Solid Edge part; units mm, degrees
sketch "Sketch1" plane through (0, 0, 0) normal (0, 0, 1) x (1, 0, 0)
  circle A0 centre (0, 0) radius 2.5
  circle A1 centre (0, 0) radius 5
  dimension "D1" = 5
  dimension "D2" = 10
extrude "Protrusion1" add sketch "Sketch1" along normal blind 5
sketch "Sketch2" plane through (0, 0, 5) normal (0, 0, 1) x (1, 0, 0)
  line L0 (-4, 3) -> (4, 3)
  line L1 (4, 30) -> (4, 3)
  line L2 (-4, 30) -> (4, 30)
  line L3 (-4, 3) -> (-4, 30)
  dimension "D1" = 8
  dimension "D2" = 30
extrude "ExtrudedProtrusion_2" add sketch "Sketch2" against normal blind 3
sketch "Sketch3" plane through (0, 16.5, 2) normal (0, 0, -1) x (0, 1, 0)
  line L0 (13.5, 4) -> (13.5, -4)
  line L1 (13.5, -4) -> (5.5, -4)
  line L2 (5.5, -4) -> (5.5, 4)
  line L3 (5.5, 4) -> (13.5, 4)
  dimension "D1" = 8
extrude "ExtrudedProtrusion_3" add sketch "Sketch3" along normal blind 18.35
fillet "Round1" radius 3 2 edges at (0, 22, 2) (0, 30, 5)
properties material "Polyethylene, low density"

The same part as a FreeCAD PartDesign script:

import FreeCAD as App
import Part
import Sketcher

V = App.Vector


def edges_at(feature, points):
    """Names of the edges that pass closest to the given points."""
    edges = feature.Shape.Edges
    near = lambda p: min(range(len(edges)), key=lambda i: edges[i].distToShape(Part.Vertex(*p))[0])
    return sorted({f"Edge{near(p) + 1}" for p in points})

doc = App.newDocument("Part")
body = doc.addObject("PartDesign::Body", "Body")

# Sketch on XY plane
sketch1 = doc.addObject("Sketcher::SketchObject", "Sketch")
body.addObject(sketch1)
sketch1.AttachmentSupport = (doc.XY_Plane, [""])
sketch1.MapMode = "FlatFace"
sketch1.addGeometry(Part.Circle(V(0, 0, 0), V(0, 0, 1), 5), False)
sketch1.addGeometry(Part.Circle(V(0, 0, 0), V(0, 0, 1), 2.5), False)
sketch1.addConstraint(Sketcher.Constraint("Coincident", 0, 3, -1, 1))
sketch1.addConstraint(Sketcher.Constraint("Coincident", 1, 3, -1, 1))
sketch1.addConstraint(Sketcher.Constraint("Diameter", 0, 10.0))
sketch1.addConstraint(Sketcher.Constraint("Diameter", 1, 5.0))
pad1 = doc.addObject("PartDesign::Pad", "Pad")
body.addObject(pad1)
pad1.Profile = sketch1
pad1.Length = 5

# Sketch on XY plane
sketch2 = doc.addObject("Sketcher::SketchObject", "Sketch001")
body.addObject(sketch2)
sketch2.AttachmentSupport = (doc.XY_Plane, [""])
sketch2.MapMode = "FlatFace"
sketch2.AttachmentOffset = App.Placement(V(0, 0, 5), App.Rotation())
sketch2.addGeometry(Part.LineSegment(V(-4, 30, 0), V(-4, 3, 0)), False)
sketch2.addGeometry(Part.LineSegment(V(-4, 3, 0), V(4, 3, 0)), False)
sketch2.addGeometry(Part.LineSegment(V(4, 3, 0), V(4, 30, 0)), False)
sketch2.addGeometry(Part.LineSegment(V(4, 30, 0), V(-4, 30, 0)), False)
sketch2.addConstraint(Sketcher.Constraint("Coincident", 0, 2, 1, 1))
sketch2.addConstraint(Sketcher.Constraint("Coincident", 1, 2, 2, 1))
sketch2.addConstraint(Sketcher.Constraint("Coincident", 2, 2, 3, 1))
sketch2.addConstraint(Sketcher.Constraint("Coincident", 3, 2, 0, 1))
sketch2.addConstraint(Sketcher.Constraint("Vertical", 0))
sketch2.addConstraint(Sketcher.Constraint("Horizontal", 1))
sketch2.addConstraint(Sketcher.Constraint("Vertical", 2))
sketch2.addConstraint(Sketcher.Constraint("Horizontal", 3))
sketch2.addConstraint(Sketcher.Constraint("DistanceX", 0, 2, -1, 1, 4.0))
sketch2.addConstraint(Sketcher.Constraint("DistanceX", -1, 1, 1, 2, 4.0))
sketch2.addConstraint(Sketcher.Constraint("DistanceY", 0, 2, 0, 1, 27.0))
sketch2.addConstraint(Sketcher.Constraint("DistanceY", -1, 1, 0, 2, 3.0))
pad2 = doc.addObject("PartDesign::Pad", "Pad001")
body.addObject(pad2)
pad2.Profile = sketch2
pad2.Length = 3
pad2.Reversed = True

# Sketch on XY plane
sketch3 = doc.addObject("Sketcher::SketchObject", "Sketch002")
body.addObject(sketch3)
sketch3.AttachmentSupport = (doc.XY_Plane, [""])
sketch3.MapMode = "FlatFace"
sketch3.AttachmentOffset = App.Placement(V(0, 0, 2), App.Rotation())
sketch3.addGeometry(Part.LineSegment(V(-4, 30, 0), V(4, 30, 0)), False)
sketch3.addGeometry(Part.LineSegment(V(4, 30, 0), V(4, 22, 0)), False)
sketch3.addGeometry(Part.LineSegment(V(4, 22, 0), V(-4, 22, 0)), False)
sketch3.addGeometry(Part.LineSegment(V(-4, 22, 0), V(-4, 30, 0)), False)
sketch3.addConstraint(Sketcher.Constraint("Coincident", 0, 2, 1, 1))
sketch3.addConstraint(Sketcher.Constraint("Coincident", 1, 2, 2, 1))
sketch3.addConstraint(Sketcher.Constraint("Coincident", 2, 2, 3, 1))
sketch3.addConstraint(Sketcher.Constraint("Coincident", 3, 2, 0, 1))
sketch3.addConstraint(Sketcher.Constraint("Horizontal", 0))
sketch3.addConstraint(Sketcher.Constraint("Vertical", 1))
sketch3.addConstraint(Sketcher.Constraint("Horizontal", 2))
sketch3.addConstraint(Sketcher.Constraint("Vertical", 3))
sketch3.addConstraint(Sketcher.Constraint("Equal", 2, 1))
sketch3.addConstraint(Sketcher.Constraint("DistanceX", 0, 1, 0, 2, 8.0))
sketch3.addConstraint(Sketcher.Constraint("DistanceX", -1, 1, 0, 2, 4.0))
sketch3.addConstraint(Sketcher.Constraint("DistanceY", -1, 1, 0, 2, 30.0))
pad3 = doc.addObject("PartDesign::Pad", "Pad002")
body.addObject(pad3)
pad3.Profile = sketch3
pad3.Length = 18.35
pad3.Reversed = True
doc.recompute()

fillet = doc.addObject("PartDesign::Fillet", "Fillet")
body.addObject(fillet)
fillet.Base = (pad3, edges_at(pad3, [(0, 22, 2), (0, 30, 5)]))
fillet.Radius = 3

doc.recompute()
